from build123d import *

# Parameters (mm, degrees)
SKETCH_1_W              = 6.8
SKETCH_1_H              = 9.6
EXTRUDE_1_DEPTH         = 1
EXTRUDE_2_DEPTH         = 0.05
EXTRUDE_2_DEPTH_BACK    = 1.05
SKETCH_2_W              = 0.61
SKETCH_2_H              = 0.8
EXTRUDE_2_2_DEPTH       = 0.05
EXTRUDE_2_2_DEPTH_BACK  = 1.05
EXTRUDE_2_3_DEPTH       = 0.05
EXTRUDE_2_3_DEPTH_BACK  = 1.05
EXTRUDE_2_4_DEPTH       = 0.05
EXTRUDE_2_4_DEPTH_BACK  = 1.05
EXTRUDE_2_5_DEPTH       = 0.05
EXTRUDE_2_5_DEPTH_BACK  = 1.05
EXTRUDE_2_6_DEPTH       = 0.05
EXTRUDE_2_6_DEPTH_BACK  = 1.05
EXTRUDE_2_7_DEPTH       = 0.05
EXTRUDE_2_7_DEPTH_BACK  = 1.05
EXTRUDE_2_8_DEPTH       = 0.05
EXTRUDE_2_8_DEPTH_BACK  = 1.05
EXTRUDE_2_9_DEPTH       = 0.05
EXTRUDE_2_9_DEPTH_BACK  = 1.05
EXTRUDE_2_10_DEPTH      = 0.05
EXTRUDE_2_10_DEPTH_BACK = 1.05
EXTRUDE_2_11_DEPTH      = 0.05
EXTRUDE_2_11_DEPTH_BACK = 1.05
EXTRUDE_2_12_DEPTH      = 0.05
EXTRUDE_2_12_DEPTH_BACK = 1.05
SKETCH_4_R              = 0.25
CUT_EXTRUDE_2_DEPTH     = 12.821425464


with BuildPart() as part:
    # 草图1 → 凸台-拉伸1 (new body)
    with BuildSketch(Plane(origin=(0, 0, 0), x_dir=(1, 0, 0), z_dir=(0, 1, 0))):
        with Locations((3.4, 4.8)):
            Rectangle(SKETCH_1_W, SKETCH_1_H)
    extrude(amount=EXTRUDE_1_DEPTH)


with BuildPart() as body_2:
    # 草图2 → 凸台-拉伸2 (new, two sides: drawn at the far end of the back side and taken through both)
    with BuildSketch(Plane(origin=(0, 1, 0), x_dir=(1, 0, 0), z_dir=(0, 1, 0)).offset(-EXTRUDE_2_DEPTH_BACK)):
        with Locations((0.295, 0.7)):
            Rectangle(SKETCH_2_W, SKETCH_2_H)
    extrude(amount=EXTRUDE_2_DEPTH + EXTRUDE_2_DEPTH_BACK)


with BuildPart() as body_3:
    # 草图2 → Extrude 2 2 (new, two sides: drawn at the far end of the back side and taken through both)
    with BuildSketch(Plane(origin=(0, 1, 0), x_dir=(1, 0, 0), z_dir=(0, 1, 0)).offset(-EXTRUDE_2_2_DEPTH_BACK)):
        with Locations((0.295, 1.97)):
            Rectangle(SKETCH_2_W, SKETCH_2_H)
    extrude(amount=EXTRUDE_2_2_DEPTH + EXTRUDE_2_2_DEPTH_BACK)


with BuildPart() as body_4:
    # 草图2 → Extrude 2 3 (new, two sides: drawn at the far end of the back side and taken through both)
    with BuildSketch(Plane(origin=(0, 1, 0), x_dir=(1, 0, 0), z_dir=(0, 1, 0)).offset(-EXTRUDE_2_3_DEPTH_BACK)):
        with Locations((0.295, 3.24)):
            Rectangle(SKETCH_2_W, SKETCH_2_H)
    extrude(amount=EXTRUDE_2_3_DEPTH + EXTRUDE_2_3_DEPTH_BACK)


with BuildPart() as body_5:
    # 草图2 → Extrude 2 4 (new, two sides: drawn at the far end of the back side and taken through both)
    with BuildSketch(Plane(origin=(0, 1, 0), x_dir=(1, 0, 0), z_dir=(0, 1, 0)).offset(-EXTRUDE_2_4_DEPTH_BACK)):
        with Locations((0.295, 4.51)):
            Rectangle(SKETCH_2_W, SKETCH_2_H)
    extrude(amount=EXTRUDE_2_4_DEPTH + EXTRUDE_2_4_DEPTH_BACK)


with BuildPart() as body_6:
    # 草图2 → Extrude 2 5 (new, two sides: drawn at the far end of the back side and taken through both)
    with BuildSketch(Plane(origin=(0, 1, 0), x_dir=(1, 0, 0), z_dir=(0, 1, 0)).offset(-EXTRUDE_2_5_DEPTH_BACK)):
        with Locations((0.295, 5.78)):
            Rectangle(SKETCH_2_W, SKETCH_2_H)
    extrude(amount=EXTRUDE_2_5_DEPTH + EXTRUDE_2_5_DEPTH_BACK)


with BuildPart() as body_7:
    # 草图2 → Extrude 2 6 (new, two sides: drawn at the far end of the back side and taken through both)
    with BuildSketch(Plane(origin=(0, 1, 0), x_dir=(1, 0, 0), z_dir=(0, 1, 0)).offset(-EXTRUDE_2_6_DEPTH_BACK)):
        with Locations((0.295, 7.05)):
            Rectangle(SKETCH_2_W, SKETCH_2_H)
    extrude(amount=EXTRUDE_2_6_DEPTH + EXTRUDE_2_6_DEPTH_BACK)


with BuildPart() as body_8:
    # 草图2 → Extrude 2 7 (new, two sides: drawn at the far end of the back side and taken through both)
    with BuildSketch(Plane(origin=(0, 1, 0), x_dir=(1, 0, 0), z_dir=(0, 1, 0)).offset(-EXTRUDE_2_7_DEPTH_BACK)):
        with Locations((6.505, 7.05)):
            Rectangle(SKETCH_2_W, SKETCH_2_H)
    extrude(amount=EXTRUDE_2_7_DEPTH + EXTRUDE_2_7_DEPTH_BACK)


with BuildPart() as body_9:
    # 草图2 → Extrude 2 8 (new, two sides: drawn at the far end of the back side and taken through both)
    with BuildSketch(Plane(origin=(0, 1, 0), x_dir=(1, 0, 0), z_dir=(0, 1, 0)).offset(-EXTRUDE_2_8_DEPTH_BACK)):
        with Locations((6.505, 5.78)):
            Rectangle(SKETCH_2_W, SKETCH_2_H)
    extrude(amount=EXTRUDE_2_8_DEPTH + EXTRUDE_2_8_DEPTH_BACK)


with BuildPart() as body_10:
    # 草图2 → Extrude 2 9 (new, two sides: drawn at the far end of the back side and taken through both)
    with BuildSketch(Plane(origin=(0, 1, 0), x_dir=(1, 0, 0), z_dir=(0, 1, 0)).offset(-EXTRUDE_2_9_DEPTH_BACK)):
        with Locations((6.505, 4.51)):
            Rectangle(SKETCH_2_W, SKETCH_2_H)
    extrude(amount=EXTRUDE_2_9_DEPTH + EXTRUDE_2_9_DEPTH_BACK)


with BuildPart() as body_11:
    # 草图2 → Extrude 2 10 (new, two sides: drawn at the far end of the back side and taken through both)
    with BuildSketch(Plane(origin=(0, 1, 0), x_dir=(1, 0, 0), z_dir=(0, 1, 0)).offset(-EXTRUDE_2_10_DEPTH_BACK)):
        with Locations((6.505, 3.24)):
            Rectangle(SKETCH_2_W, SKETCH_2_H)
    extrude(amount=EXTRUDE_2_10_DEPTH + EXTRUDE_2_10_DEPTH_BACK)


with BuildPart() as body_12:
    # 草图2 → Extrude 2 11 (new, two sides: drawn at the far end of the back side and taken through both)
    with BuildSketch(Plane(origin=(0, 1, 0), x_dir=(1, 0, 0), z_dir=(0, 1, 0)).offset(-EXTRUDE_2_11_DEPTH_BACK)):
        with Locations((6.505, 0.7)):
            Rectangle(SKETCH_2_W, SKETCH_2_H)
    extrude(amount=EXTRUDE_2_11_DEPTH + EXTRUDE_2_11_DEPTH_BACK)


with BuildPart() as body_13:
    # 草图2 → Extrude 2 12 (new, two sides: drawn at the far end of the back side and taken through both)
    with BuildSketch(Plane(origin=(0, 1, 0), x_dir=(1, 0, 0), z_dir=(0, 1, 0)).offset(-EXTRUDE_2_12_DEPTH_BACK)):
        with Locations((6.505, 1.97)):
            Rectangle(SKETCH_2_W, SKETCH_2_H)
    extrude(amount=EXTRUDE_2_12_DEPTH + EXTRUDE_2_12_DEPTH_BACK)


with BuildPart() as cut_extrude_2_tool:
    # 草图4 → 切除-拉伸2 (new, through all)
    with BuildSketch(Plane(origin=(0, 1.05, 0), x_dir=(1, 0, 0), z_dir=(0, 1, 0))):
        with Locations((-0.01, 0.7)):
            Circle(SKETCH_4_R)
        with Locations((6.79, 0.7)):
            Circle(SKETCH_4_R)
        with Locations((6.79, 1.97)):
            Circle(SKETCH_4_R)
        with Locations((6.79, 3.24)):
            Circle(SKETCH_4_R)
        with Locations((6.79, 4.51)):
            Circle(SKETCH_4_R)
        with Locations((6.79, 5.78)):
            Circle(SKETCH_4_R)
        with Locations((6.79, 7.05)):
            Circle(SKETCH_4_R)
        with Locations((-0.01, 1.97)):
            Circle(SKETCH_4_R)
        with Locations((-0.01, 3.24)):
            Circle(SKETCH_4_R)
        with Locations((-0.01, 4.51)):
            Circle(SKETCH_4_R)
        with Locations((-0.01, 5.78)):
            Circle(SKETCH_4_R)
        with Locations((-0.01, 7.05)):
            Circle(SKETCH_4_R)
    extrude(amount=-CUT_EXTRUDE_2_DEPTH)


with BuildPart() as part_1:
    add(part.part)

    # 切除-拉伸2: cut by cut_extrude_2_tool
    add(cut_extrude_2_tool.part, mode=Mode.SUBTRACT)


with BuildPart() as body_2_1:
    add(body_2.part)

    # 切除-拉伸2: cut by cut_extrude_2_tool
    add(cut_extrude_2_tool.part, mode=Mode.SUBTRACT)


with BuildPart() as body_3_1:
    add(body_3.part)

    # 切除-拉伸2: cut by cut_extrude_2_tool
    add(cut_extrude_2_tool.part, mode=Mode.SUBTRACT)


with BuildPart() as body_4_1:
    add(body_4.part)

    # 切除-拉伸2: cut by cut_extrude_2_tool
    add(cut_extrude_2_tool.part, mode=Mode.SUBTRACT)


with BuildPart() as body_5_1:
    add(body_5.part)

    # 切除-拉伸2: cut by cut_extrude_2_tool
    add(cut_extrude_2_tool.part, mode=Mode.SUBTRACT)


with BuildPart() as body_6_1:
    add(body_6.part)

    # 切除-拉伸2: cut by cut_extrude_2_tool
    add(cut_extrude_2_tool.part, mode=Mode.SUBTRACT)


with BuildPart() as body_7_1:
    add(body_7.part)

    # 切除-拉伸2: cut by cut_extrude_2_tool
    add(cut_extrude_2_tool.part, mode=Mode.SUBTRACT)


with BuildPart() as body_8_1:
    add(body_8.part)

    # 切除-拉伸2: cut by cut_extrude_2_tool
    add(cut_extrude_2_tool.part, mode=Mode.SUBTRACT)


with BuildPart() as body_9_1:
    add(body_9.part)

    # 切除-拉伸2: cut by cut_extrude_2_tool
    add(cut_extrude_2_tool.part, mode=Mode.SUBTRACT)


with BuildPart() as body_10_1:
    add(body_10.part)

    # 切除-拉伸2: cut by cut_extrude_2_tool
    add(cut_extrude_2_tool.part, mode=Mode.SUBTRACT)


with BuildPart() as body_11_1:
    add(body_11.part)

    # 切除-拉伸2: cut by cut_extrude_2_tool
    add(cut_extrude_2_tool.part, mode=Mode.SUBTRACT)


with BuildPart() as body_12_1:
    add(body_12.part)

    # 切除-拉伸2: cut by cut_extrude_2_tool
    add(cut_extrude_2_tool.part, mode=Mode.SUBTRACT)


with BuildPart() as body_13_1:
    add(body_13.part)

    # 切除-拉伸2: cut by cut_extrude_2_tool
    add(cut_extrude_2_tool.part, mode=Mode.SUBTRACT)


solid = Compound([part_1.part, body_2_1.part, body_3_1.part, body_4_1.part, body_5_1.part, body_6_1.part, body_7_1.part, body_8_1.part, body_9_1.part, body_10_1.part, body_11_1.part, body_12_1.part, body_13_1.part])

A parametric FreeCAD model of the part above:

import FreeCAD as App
import Part
import Sketcher

V = App.Vector
Q = App.Units.Quantity

doc = App.newDocument("Part")
body = doc.addObject("PartDesign::Body", "Body")

# Sketch on XZ plane
sketch1 = doc.addObject("Sketcher::SketchObject", "Sketch")
body.addObject(sketch1)
sketch1.AttachmentSupport = (doc.XZ_Plane, [""])
sketch1.MapMode = "FlatFace"
sketch1.addGeometry([
    Part.LineSegment(V(0, -10, 0), V(0, 0, 0)),
    Part.LineSegment(V(0, 0, 0), V(7, 0, 0)),
    Part.LineSegment(V(7, 0, 0), V(7, -10, 0)),
    Part.LineSegment(V(7, -10, 0), V(0, -10, 0)),
], False)
sketch1.addConstraint([
    Sketcher.Constraint("Coincident", 0, 2, 1, 1),
    Sketcher.Constraint("Coincident", 1, 2, 2, 1),
    Sketcher.Constraint("Coincident", 2, 2, 3, 1),
    Sketcher.Constraint("Coincident", 3, 2, 0, 1),
    Sketcher.Constraint("Vertical", 0),
    Sketcher.Constraint("Horizontal", 1),
    Sketcher.Constraint("Vertical", 2),
    Sketcher.Constraint("Horizontal", 3),
    Sketcher.Constraint("Coincident", 0, 2, -1, 1),
    Sketcher.Constraint("DistanceX", 1, 1, 1, 2, Q("6.8 mm")),
    Sketcher.Constraint("DistanceY", 0, 1, 0, 2, Q("9.6 mm")),
])
pad1 = doc.addObject("PartDesign::Pad", "Pad")
body.addObject(pad1)
pad1.Profile = sketch1
pad1.Length = 1
pad1.Reversed = True
body2 = doc.addObject("PartDesign::Body", "Body001")

# Sketch on XZ plane
sketch2 = doc.addObject("Sketcher::SketchObject", "Sketch001")
body2.addObject(sketch2)
sketch2.AttachmentSupport = (doc.getObject("XZ_Plane001"), [""])
sketch2.MapMode = "FlatFace"
sketch2.AttachmentOffset = App.Placement(V(0, 0, -1), App.Rotation())
sketch2.addGeometry([
    Part.LineSegment(V(0, -1.1, 0), V(0, -0.3, 0)),
    Part.LineSegment(V(0, -0.3, 0), V(0.6, -0.3, 0)),
    Part.LineSegment(V(0.6, -0.3, 0), V(0.6, -1.1, 0)),
    Part.LineSegment(V(0.6, -1.1, 0), V(0, -1.1, 0)),
], False)
sketch2.addConstraint([
    Sketcher.Constraint("Coincident", 0, 2, 1, 1),
    Sketcher.Constraint("Coincident", 1, 2, 2, 1),
    Sketcher.Constraint("Coincident", 2, 2, 3, 1),
    Sketcher.Constraint("Coincident", 3, 2, 0, 1),
    Sketcher.Constraint("Vertical", 0),
    Sketcher.Constraint("Horizontal", 1),
    Sketcher.Constraint("Vertical", 2),
    Sketcher.Constraint("Horizontal", 3),
    Sketcher.Constraint("DistanceY", 0, 1, 0, 2, Q("0.8 mm")),
    Sketcher.Constraint("DistanceX", 1, 1, 1, 2, Q("0.61 mm")),
    Sketcher.Constraint("DistanceY", 0, 2, -1, 1, Q("0.3 mm")),
    Sketcher.Constraint("DistanceX", -1, 1, 1, 2, Q("0.6 mm")),
])
pad2 = doc.addObject("PartDesign::Pad", "Pad001")
body2.addObject(pad2)
pad2.Profile = sketch2
pad2.Type = "TwoLengths"
pad2.Length = 0.05
pad2.Length2 = 1.05
pad2.Reversed = True
body3 = doc.addObject("PartDesign::Body", "Body002")

# Sketch on XZ plane
sketch3 = doc.addObject("Sketcher::SketchObject", "Sketch002")
body3.addObject(sketch3)
sketch3.AttachmentSupport = (doc.getObject("XZ_Plane002"), [""])
sketch3.MapMode = "FlatFace"
sketch3.AttachmentOffset = App.Placement(V(0, 0, -1), App.Rotation())
sketch3.addGeometry([
    Part.LineSegment(V(0, -2.4, 0), V(0, -1.6, 0)),
    Part.LineSegment(V(0, -1.6, 0), V(0.6, -1.6, 0)),
    Part.LineSegment(V(0.6, -1.6, 0), V(0.6, -2.4, 0)),
    Part.LineSegment(V(0.6, -2.4, 0), V(0, -2.4, 0)),
], False)
sketch3.addConstraint([
    Sketcher.Constraint("Coincident", 0, 2, 1, 1),
    Sketcher.Constraint("Coincident", 1, 2, 2, 1),
    Sketcher.Constraint("Coincident", 2, 2, 3, 1),
    Sketcher.Constraint("Coincident", 3, 2, 0, 1),
    Sketcher.Constraint("Vertical", 0),
    Sketcher.Constraint("Horizontal", 1),
    Sketcher.Constraint("Vertical", 2),
    Sketcher.Constraint("Horizontal", 3),
    Sketcher.Constraint("DistanceY", 0, 1, 0, 2, Q("0.8 mm")),
    Sketcher.Constraint("DistanceX", 1, 1, 1, 2, Q("0.61 mm")),
    Sketcher.Constraint("DistanceX", -1, 1, 1, 2, Q("0.6 mm")),
    Sketcher.Constraint("DistanceY", 0, 2, -1, 1, Q("1.57 mm")),
])
pad3 = doc.addObject("PartDesign::Pad", "Pad002")
body3.addObject(pad3)
pad3.Profile = sketch3
pad3.Type = "TwoLengths"
pad3.Length = 0.05
pad3.Length2 = 1.05
pad3.Reversed = True
body4 = doc.addObject("PartDesign::Body", "Body003")

# Sketch on XZ plane
sketch4 = doc.addObject("Sketcher::SketchObject", "Sketch003")
body4.addObject(sketch4)
sketch4.AttachmentSupport = (doc.getObject("XZ_Plane003"), [""])
sketch4.MapMode = "FlatFace"
sketch4.AttachmentOffset = App.Placement(V(0, 0, -1), App.Rotation())
sketch4.addGeometry([
    Part.LineSegment(V(0, -3.6, 0), V(0, -2.8, 0)),
    Part.LineSegment(V(0, -2.8, 0), V(0.6, -2.8, 0)),
    Part.LineSegment(V(0.6, -2.8, 0), V(0.6, -3.6, 0)),
    Part.LineSegment(V(0.6, -3.6, 0), V(0, -3.6, 0)),
], False)
sketch4.addConstraint([
    Sketcher.Constraint("Coincident", 0, 2, 1, 1),
    Sketcher.Constraint("Coincident", 1, 2, 2, 1),
    Sketcher.Constraint("Coincident", 2, 2, 3, 1),
    Sketcher.Constraint("Coincident", 3, 2, 0, 1),
    Sketcher.Constraint("Vertical", 0),
    Sketcher.Constraint("Horizontal", 1),
    Sketcher.Constraint("Vertical", 2),
    Sketcher.Constraint("Horizontal", 3),
    Sketcher.Constraint("DistanceY", 0, 1, 0, 2, Q("0.8 mm")),
    Sketcher.Constraint("DistanceX", 1, 1, 1, 2, Q("0.61 mm")),
    Sketcher.Constraint("DistanceX", -1, 1, 1, 2, Q("0.6 mm")),
    Sketcher.Constraint("DistanceY", 0, 2, -1, 1, Q("2.84 mm")),
])
pad4 = doc.addObject("PartDesign::Pad", "Pad003")
body4.addObject(pad4)
pad4.Profile = sketch4
pad4.Type = "TwoLengths"
pad4.Length = 0.05
pad4.Length2 = 1.05
pad4.Reversed = True
body5 = doc.addObject("PartDesign::Body", "Body004")

# Sketch on XZ plane
sketch5 = doc.addObject("Sketcher::SketchObject", "Sketch004")
body5.addObject(sketch5)
sketch5.AttachmentSupport = (doc.getObject("XZ_Plane004"), [""])
sketch5.MapMode = "FlatFace"
sketch5.AttachmentOffset = App.Placement(V(0, 0, -1), App.Rotation())
sketch5.addGeometry([
    Part.LineSegment(V(0, -4.9, 0), V(0, -4.1, 0)),
    Part.LineSegment(V(0, -4.1, 0), V(0.6, -4.1, 0)),
    Part.LineSegment(V(0.6, -4.1, 0), V(0.6, -4.9, 0)),
    Part.LineSegment(V(0.6, -4.9, 0), V(0, -4.9, 0)),
], False)
sketch5.addConstraint([
    Sketcher.Constraint("Coincident", 0, 2, 1, 1),
    Sketcher.Constraint("Coincident", 1, 2, 2, 1),
    Sketcher.Constraint("Coincident", 2, 2, 3, 1),
    Sketcher.Constraint("Coincident", 3, 2, 0, 1),
    Sketcher.Constraint("Vertical", 0),
    Sketcher.Constraint("Horizontal", 1),
    Sketcher.Constraint("Vertical", 2),
    Sketcher.Constraint("Horizontal", 3),
    Sketcher.Constraint("DistanceY", 0, 1, 0, 2, Q("0.8 mm")),
    Sketcher.Constraint("DistanceX", 1, 1, 1, 2, Q("0.61 mm")),
    Sketcher.Constraint("DistanceX", -1, 1, 1, 2, Q("0.6 mm")),
    Sketcher.Constraint("DistanceY", 0, 2, -1, 1, Q("4.11 mm")),
])
pad5 = doc.addObject("PartDesign::Pad", "Pad004")
body5.addObject(pad5)
pad5.Profile = sketch5
pad5.Type = "TwoLengths"
pad5.Length = 0.05
pad5.Length2 = 1.05
pad5.Reversed = True
body6 = doc.addObject("PartDesign::Body", "Body005")

# Sketch on XZ plane
sketch6 = doc.addObject("Sketcher::SketchObject", "Sketch005")
body6.addObject(sketch6)
sketch6.AttachmentSupport = (doc.getObject("XZ_Plane005"), [""])
sketch6.MapMode = "FlatFace"
sketch6.AttachmentOffset = App.Placement(V(0, 0, -1), App.Rotation())
sketch6.addGeometry([
    Part.LineSegment(V(0, -6.2, 0), V(0, -5.4, 0)),
    Part.LineSegment(V(0, -5.4, 0), V(0.6, -5.4, 0)),
    Part.LineSegment(V(0.6, -5.4, 0), V(0.6, -6.2, 0)),
    Part.LineSegment(V(0.6, -6.2, 0), V(0, -6.2, 0)),
], False)
sketch6.addConstraint([
    Sketcher.Constraint("Coincident", 0, 2, 1, 1),
    Sketcher.Constraint("Coincident", 1, 2, 2, 1),
    Sketcher.Constraint("Coincident", 2, 2, 3, 1),
    Sketcher.Constraint("Coincident", 3, 2, 0, 1),
    Sketcher.Constraint("Vertical", 0),
    Sketcher.Constraint("Horizontal", 1),
    Sketcher.Constraint("Vertical", 2),
    Sketcher.Constraint("Horizontal", 3),
    Sketcher.Constraint("DistanceY", 0, 1, 0, 2, Q("0.8 mm")),
    Sketcher.Constraint("DistanceX", 1, 1, 1, 2, Q("0.61 mm")),
    Sketcher.Constraint("DistanceX", -1, 1, 1, 2, Q("0.6 mm")),
    Sketcher.Constraint("DistanceY", 0, 2, -1, 1, Q("5.38 mm")),
])
pad6 = doc.addObject("PartDesign::Pad", "Pad005")
body6.addObject(pad6)
pad6.Profile = sketch6
pad6.Type = "TwoLengths"
pad6.Length = 0.05
pad6.Length2 = 1.05
pad6.Reversed = True
body7 = doc.addObject("PartDesign::Body", "Body006")

# Sketch on XZ plane
sketch7 = doc.addObject("Sketcher::SketchObject", "Sketch006")
body7.addObject(sketch7)
sketch7.AttachmentSupport = (doc.getObject("XZ_Plane006"), [""])
sketch7.MapMode = "FlatFace"
sketch7.AttachmentOffset = App.Placement(V(0, 0, -1), App.Rotation())
sketch7.addGeometry([
    Part.LineSegment(V(0, -7.5, 0), V(0, -6.7, 0)),
    Part.LineSegment(V(0, -6.7, 0), V(0.6, -6.7, 0)),
    Part.LineSegment(V(0.6, -6.7, 0), V(0.6, -7.5, 0)),
    Part.LineSegment(V(0.6, -7.5, 0), V(0, -7.5, 0)),
], False)
sketch7.addConstraint([
    Sketcher.Constraint("Coincident", 0, 2, 1, 1),
    Sketcher.Constraint("Coincident", 1, 2, 2, 1),
    Sketcher.Constraint("Coincident", 2, 2, 3, 1),
    Sketcher.Constraint("Coincident", 3, 2, 0, 1),
    Sketcher.Constraint("Vertical", 0),
    Sketcher.Constraint("Horizontal", 1),
    Sketcher.Constraint("Vertical", 2),
    Sketcher.Constraint("Horizontal", 3),
    Sketcher.Constraint("DistanceY", 0, 1, 0, 2, Q("0.8 mm")),
    Sketcher.Constraint("DistanceX", 1, 1, 1, 2, Q("0.61 mm")),
    Sketcher.Constraint("DistanceX", -1, 1, 1, 2, Q("0.6 mm")),
    Sketcher.Constraint("DistanceY", 0, 2, -1, 1, Q("6.65 mm")),
])
pad7 = doc.addObject("PartDesign::Pad", "Pad006")
body7.addObject(pad7)
pad7.Profile = sketch7
pad7.Type = "TwoLengths"
pad7.Length = 0.05
pad7.Length2 = 1.05
pad7.Reversed = True
body8 = doc.addObject("PartDesign::Body", "Body007")

# Sketch on XZ plane
sketch8 = doc.addObject("Sketcher::SketchObject", "Sketch007")
body8.addObject(sketch8)
sketch8.AttachmentSupport = (doc.getObject("XZ_Plane007"), [""])
sketch8.MapMode = "FlatFace"
sketch8.AttachmentOffset = App.Placement(V(0, 0, -1), App.Rotation())
sketch8.addGeometry([
    Part.LineSegment(V(6.2, -7.5, 0), V(6.2, -6.7, 0)),
    Part.LineSegment(V(6.2, -6.7, 0), V(6.8, -6.7, 0)),
    Part.LineSegment(V(6.8, -6.7, 0), V(6.8, -7.5, 0)),
    Part.LineSegment(V(6.8, -7.5, 0), V(6.2, -7.5, 0)),
], False)
sketch8.addConstraint([
    Sketcher.Constraint("Coincident", 0, 2, 1, 1),
    Sketcher.Constraint("Coincident", 1, 2, 2, 1),
    Sketcher.Constraint("Coincident", 2, 2, 3, 1),
    Sketcher.Constraint("Coincident", 3, 2, 0, 1),
    Sketcher.Constraint("Vertical", 0),
    Sketcher.Constraint("Horizontal", 1),
    Sketcher.Constraint("Vertical", 2),
    Sketcher.Constraint("Horizontal", 3),
    Sketcher.Constraint("DistanceY", 0, 1, 0, 2, Q("0.8 mm")),
    Sketcher.Constraint("DistanceX", 1, 1, 1, 2, Q("0.61 mm")),
    Sketcher.Constraint("DistanceX", -1, 1, 0, 2, Q("6.2 mm")),
    Sketcher.Constraint("DistanceY", 0, 2, -1, 1, Q("6.65 mm")),
])
pad8 = doc.addObject("PartDesign::Pad", "Pad007")
body8.addObject(pad8)
pad8.Profile = sketch8
pad8.Type = "TwoLengths"
pad8.Length = 0.05
pad8.Length2 = 1.05
pad8.Reversed = True
body9 = doc.addObject("PartDesign::Body", "Body008")

# Sketch on XZ plane
sketch9 = doc.addObject("Sketcher::SketchObject", "Sketch008")
body9.addObject(sketch9)
sketch9.AttachmentSupport = (doc.getObject("XZ_Plane008"), [""])
sketch9.MapMode = "FlatFace"
sketch9.AttachmentOffset = App.Placement(V(0, 0, -1), App.Rotation())
sketch9.addGeometry([
    Part.LineSegment(V(6.2, -6.2, 0), V(6.2, -5.4, 0)),
    Part.LineSegment(V(6.2, -5.4, 0), V(6.8, -5.4, 0)),
    Part.LineSegment(V(6.8, -5.4, 0), V(6.8, -6.2, 0)),
    Part.LineSegment(V(6.8, -6.2, 0), V(6.2, -6.2, 0)),
], False)
sketch9.addConstraint([
    Sketcher.Constraint("Coincident", 0, 2, 1, 1),
    Sketcher.Constraint("Coincident", 1, 2, 2, 1),
    Sketcher.Constraint("Coincident", 2, 2, 3, 1),
    Sketcher.Constraint("Coincident", 3, 2, 0, 1),
    Sketcher.Constraint("Vertical", 0),
    Sketcher.Constraint("Horizontal", 1),
    Sketcher.Constraint("Vertical", 2),
    Sketcher.Constraint("Horizontal", 3),
    Sketcher.Constraint("DistanceY", 0, 1, 0, 2, Q("0.8 mm")),
    Sketcher.Constraint("DistanceX", 1, 1, 1, 2, Q("0.61 mm")),
    Sketcher.Constraint("DistanceX", -1, 1, 0, 2, Q("6.2 mm")),
    Sketcher.Constraint("DistanceY", 0, 2, -1, 1, Q("5.38 mm")),
])
pad9 = doc.addObject("PartDesign::Pad", "Pad008")
body9.addObject(pad9)
pad9.Profile = sketch9
pad9.Type = "TwoLengths"
pad9.Length = 0.05
pad9.Length2 = 1.05
pad9.Reversed = True
body10 = doc.addObject("PartDesign::Body", "Body009")

# Sketch on XZ plane
sketch10 = doc.addObject("Sketcher::SketchObject", "Sketch009")
body10.addObject(sketch10)
sketch10.AttachmentSupport = (doc.getObject("XZ_Plane009"), [""])
sketch10.MapMode = "FlatFace"
sketch10.AttachmentOffset = App.Placement(V(0, 0, -1), App.Rotation())
sketch10.addGeometry([
    Part.LineSegment(V(6.2, -4.9, 0), V(6.2, -4.1, 0)),
    Part.LineSegment(V(6.2, -4.1, 0), V(6.8, -4.1, 0)),
    Part.LineSegment(V(6.8, -4.1, 0), V(6.8, -4.9, 0)),
    Part.LineSegment(V(6.8, -4.9, 0), V(6.2, -4.9, 0)),
], False)
sketch10.addConstraint([
    Sketcher.Constraint("Coincident", 0, 2, 1, 1),
    Sketcher.Constraint("Coincident", 1, 2, 2, 1),
    Sketcher.Constraint("Coincident", 2, 2, 3, 1),
    Sketcher.Constraint("Coincident", 3, 2, 0, 1),
    Sketcher.Constraint("Vertical", 0),
    Sketcher.Constraint("Horizontal", 1),
    Sketcher.Constraint("Vertical", 2),
    Sketcher.Constraint("Horizontal", 3),
    Sketcher.Constraint("DistanceY", 0, 1, 0, 2, Q("0.8 mm")),
    Sketcher.Constraint("DistanceX", 1, 1, 1, 2, Q("0.61 mm")),
    Sketcher.Constraint("DistanceX", -1, 1, 0, 2, Q("6.2 mm")),
    Sketcher.Constraint("DistanceY", 0, 2, -1, 1, Q("4.11 mm")),
])
pad10 = doc.addObject("PartDesign::Pad", "Pad009")
body10.addObject(pad10)
pad10.Profile = sketch10
pad10.Type = "TwoLengths"
pad10.Length = 0.05
pad10.Length2 = 1.05
pad10.Reversed = True
body11 = doc.addObject("PartDesign::Body", "Body010")

# Sketch on XZ plane
sketch11 = doc.addObject("Sketcher::SketchObject", "Sketch010")
body11.addObject(sketch11)
sketch11.AttachmentSupport = (doc.getObject("XZ_Plane010"), [""])
sketch11.MapMode = "FlatFace"
sketch11.AttachmentOffset = App.Placement(V(0, 0, -1), App.Rotation())
sketch11.addGeometry([
    Part.LineSegment(V(6.2, -3.6, 0), V(6.2, -2.8, 0)),
    Part.LineSegment(V(6.2, -2.8, 0), V(6.8, -2.8, 0)),
    Part.LineSegment(V(6.8, -2.8, 0), V(6.8, -3.6, 0)),
    Part.LineSegment(V(6.8, -3.6, 0), V(6.2, -3.6, 0)),
], False)
sketch11.addConstraint([
    Sketcher.Constraint("Coincident", 0, 2, 1, 1),
    Sketcher.Constraint("Coincident", 1, 2, 2, 1),
    Sketcher.Constraint("Coincident", 2, 2, 3, 1),
    Sketcher.Constraint("Coincident", 3, 2, 0, 1),
    Sketcher.Constraint("Vertical", 0),
    Sketcher.Constraint("Horizontal", 1),
    Sketcher.Constraint("Vertical", 2),
    Sketcher.Constraint("Horizontal", 3),
    Sketcher.Constraint("DistanceY", 0, 1, 0, 2, Q("0.8 mm")),
    Sketcher.Constraint("DistanceX", 1, 1, 1, 2, Q("0.61 mm")),
    Sketcher.Constraint("DistanceX", -1, 1, 0, 2, Q("6.2 mm")),
    Sketcher.Constraint("DistanceY", 0, 2, -1, 1, Q("2.84 mm")),
])
pad11 = doc.addObject("PartDesign::Pad", "Pad010")
body11.addObject(pad11)
pad11.Profile = sketch11
pad11.Type = "TwoLengths"
pad11.Length = 0.05
pad11.Length2 = 1.05
pad11.Reversed = True
body12 = doc.addObject("PartDesign::Body", "Body011")

# Sketch on XZ plane
sketch12 = doc.addObject("Sketcher::SketchObject", "Sketch011")
body12.addObject(sketch12)
sketch12.AttachmentSupport = (doc.getObject("XZ_Plane011"), [""])
sketch12.MapMode = "FlatFace"
sketch12.AttachmentOffset = App.Placement(V(0, 0, -1), App.Rotation())
sketch12.addGeometry([
    Part.LineSegment(V(6.2, -1.1, 0), V(6.2, -0.3, 0)),
    Part.LineSegment(V(6.2, -0.3, 0), V(6.8, -0.3, 0)),
    Part.LineSegment(V(6.8, -0.3, 0), V(6.8, -1.1, 0)),
    Part.LineSegment(V(6.8, -1.1, 0), V(6.2, -1.1, 0)),
], False)
sketch12.addConstraint([
    Sketcher.Constraint("Coincident", 0, 2, 1, 1),
    Sketcher.Constraint("Coincident", 1, 2, 2, 1),
    Sketcher.Constraint("Coincident", 2, 2, 3, 1),
    Sketcher.Constraint("Coincident", 3, 2, 0, 1),
    Sketcher.Constraint("Vertical", 0),
    Sketcher.Constraint("Horizontal", 1),
    Sketcher.Constraint("Vertical", 2),
    Sketcher.Constraint("Horizontal", 3),
    Sketcher.Constraint("DistanceY", 0, 1, 0, 2, Q("0.8 mm")),
    Sketcher.Constraint("DistanceX", 1, 1, 1, 2, Q("0.61 mm")),
    Sketcher.Constraint("DistanceX", -1, 1, 0, 2, Q("6.2 mm")),
    Sketcher.Constraint("DistanceY", 0, 2, -1, 1, Q("0.3 mm")),
])
pad12 = doc.addObject("PartDesign::Pad", "Pad011")
body12.addObject(pad12)
pad12.Profile = sketch12
pad12.Type = "TwoLengths"
pad12.Length = 0.05
pad12.Length2 = 1.05
pad12.Reversed = True
body13 = doc.addObject("PartDesign::Body", "Body012")

# Sketch on XZ plane
sketch13 = doc.addObject("Sketcher::SketchObject", "Sketch012")
body13.addObject(sketch13)
sketch13.AttachmentSupport = (doc.getObject("XZ_Plane012"), [""])
sketch13.MapMode = "FlatFace"
sketch13.AttachmentOffset = App.Placement(V(0, 0, -1), App.Rotation())
sketch13.addGeometry([
    Part.LineSegment(V(6.2, -2.4, 0), V(6.2, -1.6, 0)),
    Part.LineSegment(V(6.2, -1.6, 0), V(6.8, -1.6, 0)),
    Part.LineSegment(V(6.8, -1.6, 0), V(6.8, -2.4, 0)),
    Part.LineSegment(V(6.8, -2.4, 0), V(6.2, -2.4, 0)),
], False)
sketch13.addConstraint([
    Sketcher.Constraint("Coincident", 0, 2, 1, 1),
    Sketcher.Constraint("Coincident", 1, 2, 2, 1),
    Sketcher.Constraint("Coincident", 2, 2, 3, 1),
    Sketcher.Constraint("Coincident", 3, 2, 0, 1),
    Sketcher.Constraint("Vertical", 0),
    Sketcher.Constraint("Horizontal", 1),
    Sketcher.Constraint("Vertical", 2),
    Sketcher.Constraint("Horizontal", 3),
    Sketcher.Constraint("DistanceY", 0, 1, 0, 2, Q("0.8 mm")),
    Sketcher.Constraint("DistanceX", 1, 1, 1, 2, Q("0.61 mm")),
    Sketcher.Constraint("DistanceX", -1, 1, 0, 2, Q("6.2 mm")),
    Sketcher.Constraint("DistanceY", 0, 2, -1, 1, Q("1.57 mm")),
])
pad13 = doc.addObject("PartDesign::Pad", "Pad012")
body13.addObject(pad13)
pad13.Profile = sketch13
pad13.Type = "TwoLengths"
pad13.Length = 0.05
pad13.Length2 = 1.05
pad13.Reversed = True
body14 = doc.addObject("PartDesign::Body", "Body013")
body14.AllowCompound = True

# Sketch on XZ plane
sketch14 = doc.addObject("Sketcher::SketchObject", "Sketch013")
body14.addObject(sketch14)
sketch14.AttachmentSupport = (doc.getObject("XZ_Plane013"), [""])
sketch14.MapMode = "FlatFace"
sketch14.AttachmentOffset = App.Placement(V(0, 0, -1.05), App.Rotation())
sketch14.addGeometry([
    Part.Circle(V(-0.01, -0.7, 0), V(0, 0, 1), 0.25),  # 0
    Part.Circle(V(6.79, -0.7, 0), V(0, 0, 1), 0.25),  # 1
    Part.Circle(V(6.79, -1.97, 0), V(0, 0, 1), 0.25),  # 2
    Part.Circle(V(6.79, -3.24, 0), V(0, 0, 1), 0.25),  # 3
    Part.Circle(V(6.79, -4.51, 0), V(0, 0, 1), 0.25),  # 4
    Part.Circle(V(6.79, -5.78, 0), V(0, 0, 1), 0.25),  # 5
    Part.Circle(V(6.79, -7.05, 0), V(0, 0, 1), 0.25),  # 6
    Part.Circle(V(-0.01, -1.97, 0), V(0, 0, 1), 0.25),  # 7
    Part.Circle(V(-0.01, -3.24, 0), V(0, 0, 1), 0.25),  # 8
    Part.Circle(V(-0.01, -4.51, 0), V(0, 0, 1), 0.25),  # 9
    Part.Circle(V(-0.01, -5.78, 0), V(0, 0, 1), 0.25),  # 10
    Part.Circle(V(-0.01, -7.05, 0), V(0, 0, 1), 0.25),  # 11
], False)
sketch14.addConstraint([
    Sketcher.Constraint("Equal", 0, 1),
    Sketcher.Constraint("Equal", 1, 2),
    Sketcher.Constraint("Equal", 2, 3),
    Sketcher.Constraint("Equal", 3, 4),
    Sketcher.Constraint("Equal", 4, 5),
    Sketcher.Constraint("Equal", 5, 6),
    Sketcher.Constraint("Equal", 6, 7),
    Sketcher.Constraint("Equal", 7, 8),
    Sketcher.Constraint("Equal", 8, 9),
    Sketcher.Constraint("Equal", 9, 10),
    Sketcher.Constraint("Equal", 10, 11),
    Sketcher.Constraint("Horizontal", 0, 3, 1, 3),
    Sketcher.Constraint("Horizontal", 2, 3, 7, 3),
    Sketcher.Constraint("Horizontal", 3, 3, 8, 3),
    Sketcher.Constraint("Horizontal", 4, 3, 9, 3),
    Sketcher.Constraint("Horizontal", 5, 3, 10, 3),
    Sketcher.Constraint("Horizontal", 6, 3, 11, 3),
    Sketcher.Constraint("Vertical", 1, 3, 2, 3),
    Sketcher.Constraint("Vertical", 2, 3, 3, 3),
    Sketcher.Constraint("Vertical", 3, 3, 4, 3),
    Sketcher.Constraint("Vertical", 4, 3, 5, 3),
    Sketcher.Constraint("Vertical", 5, 3, 6, 3),
    Sketcher.Constraint("Vertical", 0, 3, 7, 3),
    Sketcher.Constraint("Vertical", 7, 3, 8, 3),
    Sketcher.Constraint("Vertical", 8, 3, 9, 3),
    Sketcher.Constraint("Vertical", 9, 3, 10, 3),
    Sketcher.Constraint("Vertical", 10, 3, 11, 3),
    Sketcher.Constraint("Diameter", 0, Q("0.5 mm")),
    Sketcher.Constraint("DistanceY", 0, 3, -1, 1, Q("0.7 mm")),
    Sketcher.Constraint("DistanceX", 0, 3, 1, 3, Q("6.8 mm")),
    Sketcher.Constraint("DistanceX", 0, 3, -1, 1, Q("0.01 mm")),
    Sketcher.Constraint("DistanceY", 2, 3, -1, 1, Q("1.97 mm")),
    Sketcher.Constraint("DistanceY", 3, 3, -1, 1, Q("3.24 mm")),
    Sketcher.Constraint("DistanceY", 4, 3, -1, 1, Q("4.51 mm")),
    Sketcher.Constraint("DistanceY", 5, 3, -1, 1, Q("5.78 mm")),
    Sketcher.Constraint("DistanceY", 6, 3, -1, 1, Q("7.05 mm")),
])
pad14 = doc.addObject("PartDesign::Pad", "Pad013")
body14.addObject(pad14)
pad14.Profile = sketch14
pad14.Length = 12.821425
doc.recompute()

body15 = doc.addObject("PartDesign::Body", "Body014")
body15.BaseFeature = body14
boolean = doc.addObject("PartDesign::Boolean", "Boolean")
body.addObject(boolean)
boolean.Type = "Cut"
boolean.addObjects([body15])
doc.recompute()

body16 = doc.addObject("PartDesign::Body", "Body015")
body16.BaseFeature = body14
boolean2 = doc.addObject("PartDesign::Boolean", "Boolean001")
body2.addObject(boolean2)
boolean2.Type = "Cut"
boolean2.addObjects([body16])
doc.recompute()

body17 = doc.addObject("PartDesign::Body", "Body016")
body17.BaseFeature = body14
boolean3 = doc.addObject("PartDesign::Boolean", "Boolean002")
body3.addObject(boolean3)
boolean3.Type = "Cut"
boolean3.addObjects([body17])
doc.recompute()

body18 = doc.addObject("PartDesign::Body", "Body017")
body18.BaseFeature = body14
boolean4 = doc.addObject("PartDesign::Boolean", "Boolean003")
body4.addObject(boolean4)
boolean4.Type = "Cut"
boolean4.addObjects([body18])
doc.recompute()

body19 = doc.addObject("PartDesign::Body", "Body018")
body19.BaseFeature = body14
boolean5 = doc.addObject("PartDesign::Boolean", "Boolean004")
body5.addObject(boolean5)
boolean5.Type = "Cut"
boolean5.addObjects([body19])
doc.recompute()

body20 = doc.addObject("PartDesign::Body", "Body019")
body20.BaseFeature = body14
boolean6 = doc.addObject("PartDesign::Boolean", "Boolean005")
body6.addObject(boolean6)
boolean6.Type = "Cut"
boolean6.addObjects([body20])
doc.recompute()

body21 = doc.addObject("PartDesign::Body", "Body020")
body21.BaseFeature = body14
boolean7 = doc.addObject("PartDesign::Boolean", "Boolean006")
body7.addObject(boolean7)
boolean7.Type = "Cut"
boolean7.addObjects([body21])
doc.recompute()

body22 = doc.addObject("PartDesign::Body", "Body021")
body22.BaseFeature = body14
boolean8 = doc.addObject("PartDesign::Boolean", "Boolean007")
body8.addObject(boolean8)
boolean8.Type = "Cut"
boolean8.addObjects([body22])
doc.recompute()

body23 = doc.addObject("PartDesign::Body", "Body022")
body23.BaseFeature = body14
boolean9 = doc.addObject("PartDesign::Boolean", "Boolean008")
body9.addObject(boolean9)
boolean9.Type = "Cut"
boolean9.addObjects([body23])
doc.recompute()

body24 = doc.addObject("PartDesign::Body", "Body023")
body24.BaseFeature = body14
boolean10 = doc.addObject("PartDesign::Boolean", "Boolean009")
body10.addObject(boolean10)
boolean10.Type = "Cut"
boolean10.addObjects([body24])
doc.recompute()

body25 = doc.addObject("PartDesign::Body", "Body024")
body25.BaseFeature = body14
boolean11 = doc.addObject("PartDesign::Boolean", "Boolean010")
body11.addObject(boolean11)
boolean11.Type = "Cut"
boolean11.addObjects([body25])
doc.recompute()

body26 = doc.addObject("PartDesign::Body", "Body025")
body26.BaseFeature = body14
boolean12 = doc.addObject("PartDesign::Boolean", "Boolean011")
body12.addObject(boolean12)
boolean12.Type = "Cut"
boolean12.addObjects([body26])
doc.recompute()

boolean13 = doc.addObject("PartDesign::Boolean", "Boolean012")
body13.addObject(boolean13)
boolean13.Type = "Cut"
boolean13.addObjects([body14])

doc.recompute()
